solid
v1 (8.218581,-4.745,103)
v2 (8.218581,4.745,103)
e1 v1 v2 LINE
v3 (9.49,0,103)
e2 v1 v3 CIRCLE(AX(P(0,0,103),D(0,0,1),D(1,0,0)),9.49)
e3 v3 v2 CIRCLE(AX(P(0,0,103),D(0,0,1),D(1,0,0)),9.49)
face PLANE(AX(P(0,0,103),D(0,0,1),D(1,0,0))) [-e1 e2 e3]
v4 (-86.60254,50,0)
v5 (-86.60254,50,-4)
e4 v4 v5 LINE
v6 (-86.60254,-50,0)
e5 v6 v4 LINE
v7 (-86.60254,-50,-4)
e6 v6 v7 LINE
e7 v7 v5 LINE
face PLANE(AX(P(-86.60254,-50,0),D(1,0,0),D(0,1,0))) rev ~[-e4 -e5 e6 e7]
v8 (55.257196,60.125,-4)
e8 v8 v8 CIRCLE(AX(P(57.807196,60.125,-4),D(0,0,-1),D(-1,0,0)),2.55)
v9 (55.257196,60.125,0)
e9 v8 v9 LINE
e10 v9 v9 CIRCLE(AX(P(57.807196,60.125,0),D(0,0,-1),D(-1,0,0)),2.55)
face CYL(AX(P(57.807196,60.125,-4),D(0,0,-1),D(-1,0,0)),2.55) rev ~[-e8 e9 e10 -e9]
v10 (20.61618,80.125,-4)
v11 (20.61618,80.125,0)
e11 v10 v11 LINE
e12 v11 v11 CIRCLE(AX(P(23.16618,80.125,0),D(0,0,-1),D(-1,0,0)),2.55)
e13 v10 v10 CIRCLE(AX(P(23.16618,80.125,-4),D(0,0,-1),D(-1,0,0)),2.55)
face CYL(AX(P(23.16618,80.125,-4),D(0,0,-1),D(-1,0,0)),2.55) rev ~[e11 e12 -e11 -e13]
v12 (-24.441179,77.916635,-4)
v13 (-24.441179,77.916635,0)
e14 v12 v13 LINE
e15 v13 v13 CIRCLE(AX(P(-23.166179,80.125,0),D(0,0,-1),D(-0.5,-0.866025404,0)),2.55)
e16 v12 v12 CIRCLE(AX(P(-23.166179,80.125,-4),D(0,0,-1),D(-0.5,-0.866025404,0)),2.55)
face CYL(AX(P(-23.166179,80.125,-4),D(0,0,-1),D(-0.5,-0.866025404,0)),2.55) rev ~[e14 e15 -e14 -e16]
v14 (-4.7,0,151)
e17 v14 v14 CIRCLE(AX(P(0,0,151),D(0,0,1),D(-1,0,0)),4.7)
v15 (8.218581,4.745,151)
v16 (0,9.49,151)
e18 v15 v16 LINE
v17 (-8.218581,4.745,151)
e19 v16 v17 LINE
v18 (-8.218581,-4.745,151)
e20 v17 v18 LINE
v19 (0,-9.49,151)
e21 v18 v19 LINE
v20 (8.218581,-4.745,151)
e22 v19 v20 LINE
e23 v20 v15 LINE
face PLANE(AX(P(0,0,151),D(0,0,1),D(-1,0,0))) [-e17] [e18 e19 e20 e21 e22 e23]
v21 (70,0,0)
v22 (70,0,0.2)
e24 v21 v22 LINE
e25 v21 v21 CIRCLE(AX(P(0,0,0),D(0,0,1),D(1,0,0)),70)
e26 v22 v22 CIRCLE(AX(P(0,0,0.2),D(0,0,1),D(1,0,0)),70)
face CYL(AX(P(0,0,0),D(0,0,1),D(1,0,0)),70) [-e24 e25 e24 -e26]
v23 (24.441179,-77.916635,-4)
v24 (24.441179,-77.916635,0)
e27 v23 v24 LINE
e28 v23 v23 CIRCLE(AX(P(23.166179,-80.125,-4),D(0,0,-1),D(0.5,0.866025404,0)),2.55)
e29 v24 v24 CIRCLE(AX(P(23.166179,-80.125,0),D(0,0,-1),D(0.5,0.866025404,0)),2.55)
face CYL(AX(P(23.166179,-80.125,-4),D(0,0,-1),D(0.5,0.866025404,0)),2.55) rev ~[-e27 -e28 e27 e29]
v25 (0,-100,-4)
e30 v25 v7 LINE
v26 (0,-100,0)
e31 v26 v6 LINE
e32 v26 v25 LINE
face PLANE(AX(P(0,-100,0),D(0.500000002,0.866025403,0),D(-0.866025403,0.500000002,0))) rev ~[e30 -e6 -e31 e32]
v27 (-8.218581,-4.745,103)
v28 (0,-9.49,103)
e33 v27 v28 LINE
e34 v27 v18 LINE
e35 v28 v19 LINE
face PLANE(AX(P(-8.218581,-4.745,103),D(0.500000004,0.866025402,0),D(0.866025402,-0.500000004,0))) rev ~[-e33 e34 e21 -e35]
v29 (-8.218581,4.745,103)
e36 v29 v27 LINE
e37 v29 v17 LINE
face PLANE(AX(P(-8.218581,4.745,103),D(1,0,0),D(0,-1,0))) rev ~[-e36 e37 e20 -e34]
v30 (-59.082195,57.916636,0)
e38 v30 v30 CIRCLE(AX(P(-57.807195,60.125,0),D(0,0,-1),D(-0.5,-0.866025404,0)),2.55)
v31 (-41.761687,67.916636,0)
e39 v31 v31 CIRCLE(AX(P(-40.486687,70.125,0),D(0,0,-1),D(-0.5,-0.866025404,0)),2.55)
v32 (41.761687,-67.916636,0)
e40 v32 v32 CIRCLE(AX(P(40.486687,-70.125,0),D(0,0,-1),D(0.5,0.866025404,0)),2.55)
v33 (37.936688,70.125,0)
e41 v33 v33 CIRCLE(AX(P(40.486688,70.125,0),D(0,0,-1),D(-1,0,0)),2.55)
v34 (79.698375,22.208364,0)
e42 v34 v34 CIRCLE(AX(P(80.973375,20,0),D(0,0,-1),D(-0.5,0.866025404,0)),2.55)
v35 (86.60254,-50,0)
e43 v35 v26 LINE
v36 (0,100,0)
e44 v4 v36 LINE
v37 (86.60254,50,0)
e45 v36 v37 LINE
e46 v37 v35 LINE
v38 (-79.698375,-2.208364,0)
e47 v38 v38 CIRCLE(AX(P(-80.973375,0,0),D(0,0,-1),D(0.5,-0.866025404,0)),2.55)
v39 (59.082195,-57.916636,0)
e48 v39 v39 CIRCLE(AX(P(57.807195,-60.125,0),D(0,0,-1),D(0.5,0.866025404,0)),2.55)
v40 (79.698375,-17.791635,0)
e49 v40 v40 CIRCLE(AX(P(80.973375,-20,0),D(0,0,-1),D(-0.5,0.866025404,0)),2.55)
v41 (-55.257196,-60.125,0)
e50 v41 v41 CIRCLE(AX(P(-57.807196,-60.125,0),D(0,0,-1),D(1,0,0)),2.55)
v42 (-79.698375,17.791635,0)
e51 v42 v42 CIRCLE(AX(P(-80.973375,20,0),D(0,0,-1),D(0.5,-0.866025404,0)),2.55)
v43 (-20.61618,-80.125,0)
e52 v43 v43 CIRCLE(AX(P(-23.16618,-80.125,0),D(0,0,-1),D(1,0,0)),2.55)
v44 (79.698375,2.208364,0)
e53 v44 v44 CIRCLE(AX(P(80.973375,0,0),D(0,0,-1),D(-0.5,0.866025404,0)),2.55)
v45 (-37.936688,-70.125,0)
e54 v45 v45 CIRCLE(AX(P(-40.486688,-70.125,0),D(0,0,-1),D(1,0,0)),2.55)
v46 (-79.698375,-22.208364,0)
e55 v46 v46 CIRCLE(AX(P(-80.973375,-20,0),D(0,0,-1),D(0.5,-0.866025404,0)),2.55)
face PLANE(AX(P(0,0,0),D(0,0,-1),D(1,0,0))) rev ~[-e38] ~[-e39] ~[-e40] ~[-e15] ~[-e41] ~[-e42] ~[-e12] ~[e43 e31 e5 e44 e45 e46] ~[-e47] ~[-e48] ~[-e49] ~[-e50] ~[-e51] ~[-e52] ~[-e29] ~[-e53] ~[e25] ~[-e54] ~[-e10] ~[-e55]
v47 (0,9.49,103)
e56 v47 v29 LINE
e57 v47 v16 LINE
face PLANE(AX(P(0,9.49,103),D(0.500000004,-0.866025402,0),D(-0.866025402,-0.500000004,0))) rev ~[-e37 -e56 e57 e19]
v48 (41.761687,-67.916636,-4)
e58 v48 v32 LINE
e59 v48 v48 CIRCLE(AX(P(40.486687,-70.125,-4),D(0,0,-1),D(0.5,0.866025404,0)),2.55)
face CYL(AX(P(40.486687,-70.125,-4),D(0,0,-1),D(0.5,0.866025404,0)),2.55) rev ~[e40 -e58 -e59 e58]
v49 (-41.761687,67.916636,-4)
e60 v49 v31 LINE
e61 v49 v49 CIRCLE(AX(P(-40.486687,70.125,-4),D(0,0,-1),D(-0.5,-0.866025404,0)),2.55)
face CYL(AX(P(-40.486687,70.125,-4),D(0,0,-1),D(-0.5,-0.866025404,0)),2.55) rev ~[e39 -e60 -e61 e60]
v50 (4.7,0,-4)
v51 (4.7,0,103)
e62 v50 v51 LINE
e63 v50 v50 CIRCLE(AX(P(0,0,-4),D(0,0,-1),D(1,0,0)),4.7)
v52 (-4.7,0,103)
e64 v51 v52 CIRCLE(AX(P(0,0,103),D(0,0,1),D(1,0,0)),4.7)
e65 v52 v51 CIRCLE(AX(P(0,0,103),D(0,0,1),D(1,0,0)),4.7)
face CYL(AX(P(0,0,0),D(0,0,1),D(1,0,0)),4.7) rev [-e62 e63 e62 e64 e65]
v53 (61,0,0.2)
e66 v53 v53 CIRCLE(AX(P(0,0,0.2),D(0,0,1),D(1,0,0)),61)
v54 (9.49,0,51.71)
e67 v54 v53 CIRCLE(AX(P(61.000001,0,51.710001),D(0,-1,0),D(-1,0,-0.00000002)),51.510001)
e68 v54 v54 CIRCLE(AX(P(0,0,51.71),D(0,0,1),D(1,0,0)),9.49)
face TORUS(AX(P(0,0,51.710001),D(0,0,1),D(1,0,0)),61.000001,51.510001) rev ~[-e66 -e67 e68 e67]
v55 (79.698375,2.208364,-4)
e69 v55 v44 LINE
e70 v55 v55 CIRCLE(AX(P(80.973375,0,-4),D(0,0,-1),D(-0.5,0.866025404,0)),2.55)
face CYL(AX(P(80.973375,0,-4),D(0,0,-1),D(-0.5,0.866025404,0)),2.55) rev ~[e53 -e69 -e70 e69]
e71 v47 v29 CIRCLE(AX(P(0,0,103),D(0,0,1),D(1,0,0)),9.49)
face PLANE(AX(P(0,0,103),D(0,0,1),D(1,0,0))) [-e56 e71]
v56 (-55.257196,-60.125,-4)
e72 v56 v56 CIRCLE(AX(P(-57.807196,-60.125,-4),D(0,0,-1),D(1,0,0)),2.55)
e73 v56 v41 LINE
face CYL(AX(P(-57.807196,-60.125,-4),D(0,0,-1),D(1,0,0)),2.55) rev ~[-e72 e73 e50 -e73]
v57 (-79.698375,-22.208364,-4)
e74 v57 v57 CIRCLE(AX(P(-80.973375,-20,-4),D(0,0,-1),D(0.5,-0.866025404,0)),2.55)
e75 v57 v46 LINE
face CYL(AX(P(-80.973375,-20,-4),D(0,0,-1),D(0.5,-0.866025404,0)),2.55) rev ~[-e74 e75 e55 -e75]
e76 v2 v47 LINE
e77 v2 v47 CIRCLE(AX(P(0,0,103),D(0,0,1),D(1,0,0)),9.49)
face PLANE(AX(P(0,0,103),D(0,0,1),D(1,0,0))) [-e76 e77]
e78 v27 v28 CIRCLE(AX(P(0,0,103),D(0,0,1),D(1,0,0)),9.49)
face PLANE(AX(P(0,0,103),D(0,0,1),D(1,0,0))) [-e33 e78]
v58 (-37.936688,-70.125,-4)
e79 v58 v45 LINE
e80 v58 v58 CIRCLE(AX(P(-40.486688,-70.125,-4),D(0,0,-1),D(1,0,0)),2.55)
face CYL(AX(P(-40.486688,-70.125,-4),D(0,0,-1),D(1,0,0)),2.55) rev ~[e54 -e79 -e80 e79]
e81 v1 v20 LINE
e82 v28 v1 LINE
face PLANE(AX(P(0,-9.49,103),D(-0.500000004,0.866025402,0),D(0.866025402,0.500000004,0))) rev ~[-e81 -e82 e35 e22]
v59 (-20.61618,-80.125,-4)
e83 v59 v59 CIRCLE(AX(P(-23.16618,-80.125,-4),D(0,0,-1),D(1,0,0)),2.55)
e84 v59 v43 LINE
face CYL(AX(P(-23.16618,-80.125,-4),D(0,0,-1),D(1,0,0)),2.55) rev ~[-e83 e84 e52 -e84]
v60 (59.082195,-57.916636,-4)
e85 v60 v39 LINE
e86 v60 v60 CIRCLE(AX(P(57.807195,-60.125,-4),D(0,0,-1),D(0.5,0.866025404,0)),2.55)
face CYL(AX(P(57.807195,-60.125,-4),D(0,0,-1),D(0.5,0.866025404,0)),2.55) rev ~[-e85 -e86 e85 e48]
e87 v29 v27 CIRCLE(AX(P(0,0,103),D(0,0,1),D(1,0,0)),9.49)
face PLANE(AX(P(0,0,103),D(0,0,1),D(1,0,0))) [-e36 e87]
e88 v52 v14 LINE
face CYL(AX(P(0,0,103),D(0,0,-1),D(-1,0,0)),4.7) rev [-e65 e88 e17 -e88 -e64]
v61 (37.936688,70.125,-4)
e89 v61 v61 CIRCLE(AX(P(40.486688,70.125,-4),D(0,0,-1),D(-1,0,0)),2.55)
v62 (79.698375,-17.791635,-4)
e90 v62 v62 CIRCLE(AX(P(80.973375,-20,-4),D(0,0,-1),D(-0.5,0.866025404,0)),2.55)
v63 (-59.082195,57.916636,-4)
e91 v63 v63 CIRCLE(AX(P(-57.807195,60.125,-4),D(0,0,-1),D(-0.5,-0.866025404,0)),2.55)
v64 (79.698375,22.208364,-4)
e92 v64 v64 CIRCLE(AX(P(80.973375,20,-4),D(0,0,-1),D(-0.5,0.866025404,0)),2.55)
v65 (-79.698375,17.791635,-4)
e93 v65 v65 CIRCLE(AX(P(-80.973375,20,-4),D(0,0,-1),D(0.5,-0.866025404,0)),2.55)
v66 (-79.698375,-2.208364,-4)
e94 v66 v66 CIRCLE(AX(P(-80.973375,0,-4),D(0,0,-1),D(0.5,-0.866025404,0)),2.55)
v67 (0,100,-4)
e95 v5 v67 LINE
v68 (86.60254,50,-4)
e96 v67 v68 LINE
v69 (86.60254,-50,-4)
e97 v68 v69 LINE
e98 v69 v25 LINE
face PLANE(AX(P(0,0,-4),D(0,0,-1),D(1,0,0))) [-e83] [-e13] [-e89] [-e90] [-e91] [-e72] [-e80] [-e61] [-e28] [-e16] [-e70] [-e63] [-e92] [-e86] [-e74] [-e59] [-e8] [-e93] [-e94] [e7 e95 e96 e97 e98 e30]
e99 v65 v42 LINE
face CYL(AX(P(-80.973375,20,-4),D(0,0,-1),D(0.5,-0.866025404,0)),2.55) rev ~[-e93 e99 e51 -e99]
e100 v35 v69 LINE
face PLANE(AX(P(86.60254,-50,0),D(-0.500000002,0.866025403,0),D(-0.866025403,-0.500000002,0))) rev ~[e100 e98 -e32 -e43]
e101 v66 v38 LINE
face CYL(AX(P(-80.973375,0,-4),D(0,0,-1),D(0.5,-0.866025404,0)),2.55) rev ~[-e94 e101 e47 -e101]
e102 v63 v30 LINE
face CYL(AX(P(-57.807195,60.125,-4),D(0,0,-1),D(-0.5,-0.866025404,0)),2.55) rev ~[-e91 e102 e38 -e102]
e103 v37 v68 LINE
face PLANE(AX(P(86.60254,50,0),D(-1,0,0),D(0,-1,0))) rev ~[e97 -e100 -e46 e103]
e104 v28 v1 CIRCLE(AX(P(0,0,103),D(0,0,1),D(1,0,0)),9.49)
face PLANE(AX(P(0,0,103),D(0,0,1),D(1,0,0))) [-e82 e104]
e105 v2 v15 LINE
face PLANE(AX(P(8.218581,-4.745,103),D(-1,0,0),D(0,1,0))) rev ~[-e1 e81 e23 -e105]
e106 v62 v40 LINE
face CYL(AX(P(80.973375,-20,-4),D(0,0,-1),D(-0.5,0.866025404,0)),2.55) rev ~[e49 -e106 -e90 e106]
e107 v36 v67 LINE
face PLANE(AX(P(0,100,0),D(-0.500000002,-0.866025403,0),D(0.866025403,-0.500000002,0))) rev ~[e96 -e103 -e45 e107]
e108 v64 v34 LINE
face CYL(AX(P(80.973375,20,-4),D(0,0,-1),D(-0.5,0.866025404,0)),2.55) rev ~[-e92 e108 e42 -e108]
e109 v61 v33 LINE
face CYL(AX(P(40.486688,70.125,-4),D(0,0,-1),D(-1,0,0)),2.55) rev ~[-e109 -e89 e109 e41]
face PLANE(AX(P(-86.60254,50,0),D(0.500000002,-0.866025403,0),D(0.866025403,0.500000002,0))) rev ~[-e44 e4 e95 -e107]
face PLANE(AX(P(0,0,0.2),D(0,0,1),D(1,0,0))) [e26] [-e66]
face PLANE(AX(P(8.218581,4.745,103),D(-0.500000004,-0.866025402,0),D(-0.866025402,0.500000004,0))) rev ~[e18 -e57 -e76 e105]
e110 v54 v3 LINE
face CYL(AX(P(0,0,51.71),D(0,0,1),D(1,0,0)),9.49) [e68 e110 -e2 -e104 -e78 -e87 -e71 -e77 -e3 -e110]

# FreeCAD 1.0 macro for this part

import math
import FreeCAD as App
import Part
import Sketcher

V = App.Vector
Q = App.Units.Quantity

doc = App.newDocument("Part")
body = doc.addObject("PartDesign::Body", "Body")

sketch1 = body.newObject("Sketcher::SketchObject", "Sketch")
sketch1.AttachmentSupport = (doc.getObject("XZ_Plane"), [""])
sketch1.MapMode = "FlatFace"
sketch1.addGeometry([
    Part.LineSegment(V(9.49, 51.71, 0), V(9.49, 103, 0)),
    Part.LineSegment(V(9.49, 103, 0), V(4.7, 103, 0)),
    Part.LineSegment(V(4.7, 103, 0), V(4.7, 0, 0)),
    Part.LineSegment(V(4.7, 0, 0), V(70, 0, 0)),
    Part.LineSegment(V(70, 0, 0), V(70, 0.2, 0)),
    Part.LineSegment(V(70, 0.2, 0), V(61, 0.2, 0)),
    Part.ArcOfCircle(Part.Circle(V(61.000001, 51.710001, 0), V(0, 0, 1), 51.510001), math.radians(-179.999999), math.radians(-90.000001)),
], False)
sketch1.addConstraint([
    Sketcher.Constraint("Coincident", 0, 2, 1, 1),
    Sketcher.Constraint("Coincident", 1, 2, 2, 1),
    Sketcher.Constraint("Coincident", 2, 2, 3, 1),
    Sketcher.Constraint("Coincident", 3, 2, 4, 1),
    Sketcher.Constraint("Coincident", 4, 2, 5, 1),
    Sketcher.Constraint("Tangent", 5, 2, 6, 2),
    Sketcher.Constraint("Tangent", 6, 1, 0, 1),
    Sketcher.Constraint("Vertical", 0),
    Sketcher.Constraint("Horizontal", 1),
    Sketcher.Constraint("Vertical", 2),
    Sketcher.Constraint("Horizontal", 3),
    Sketcher.Constraint("Vertical", 4),
    Sketcher.Constraint("Horizontal", 5),
    Sketcher.Constraint("PointOnObject", 2, 2, -1),
    Sketcher.Constraint("DistanceX", 5, 2, 5, 1, Q("9 mm")),
    Sketcher.Constraint("DistanceY", 2, 2, 2, 1, Q("103 mm")),
    Sketcher.Constraint("Radius", 6, Q("51.510001 mm")),
    Sketcher.Constraint("DistanceX", 3, 1, 3, 2, Q("65.3 mm")),
    Sketcher.Constraint("DistanceY", 4, 1, 4, 2, Q("0.2 mm")),
    Sketcher.Constraint("DistanceX", -1, 1, 6, 3, Q("61.000001 mm")),
])
revolution = body.newObject("PartDesign::Revolution", "Revolution")
revolution.Profile = sketch1
revolution.ReferenceAxis = (sketch1, ["V_Axis"])
revolution.Angle = 360

sketch2 = body.newObject("Sketcher::SketchObject", "Sketch001")
sketch2.AttachmentSupport = (doc.getObject("XY_Plane"), [""])
sketch2.MapMode = "FlatFace"
sketch2.addGeometry([
    Part.LineSegment(V(0, -100, 0), V(-86.60254, -50, 0)),
    Part.LineSegment(V(-86.60254, -50, 0), V(-86.60254, 50, 0)),
    Part.LineSegment(V(-86.60254, 50, 0), V(0, 100, 0)),
    Part.LineSegment(V(0, 100, 0), V(86.60254, 50, 0)),
    Part.LineSegment(V(86.60254, 50, 0), V(86.60254, -50, 0)),
    Part.LineSegment(V(86.60254, -50, 0), V(0, -100, 0)),
    Part.Circle(V(0, 0, 0), V(0, 0, 1), 4.7),
], False)
sketch2.addConstraint([
    Sketcher.Constraint("Coincident", 0, 2, 1, 1),
    Sketcher.Constraint("Coincident", 1, 2, 2, 1),
    Sketcher.Constraint("Coincident", 2, 2, 3, 1),
    Sketcher.Constraint("Coincident", 3, 2, 4, 1),
    Sketcher.Constraint("Coincident", 4, 2, 5, 1),
    Sketcher.Constraint("Coincident", 5, 2, 0, 1),
    Sketcher.Constraint("Vertical", 1),
    Sketcher.Constraint("Vertical", 4),
    Sketcher.Constraint("Coincident", 6, 3, -1, 1),
    Sketcher.Constraint("Symmetric", 0, 2, 3, 2, -1, 1),
    Sketcher.Constraint("Symmetric", 2, 2, 5, 2, -1, 1),
    Sketcher.Constraint("PointOnObject", 2, 2, -2),
    Sketcher.Constraint("Parallel", 2, 5),
    Sketcher.Constraint("Horizontal", 1, 2, 3, 2),
    Sketcher.Constraint("Diameter", 6, Q("9.4 mm")),
    Sketcher.Constraint("DistanceY", 1, 1, 1, 2, Q("100 mm")),
    Sketcher.Constraint("Angle", 0, Q("150 deg")),
    Sketcher.Constraint("Distance", 0, Q("100 mm")),
])
pad1 = body.newObject("PartDesign::Pad", "Pad")
pad1.Profile = sketch2
pad1.Length = 4
pad1.Reversed = True

sketch3 = body.newObject("Sketcher::SketchObject", "Sketch002")
sketch3.AttachmentSupport = (doc.getObject("XY_Plane"), [""])
sketch3.MapMode = "FlatFace"
sketch3.AttachmentOffset = App.Placement(V(0, 0, -4), App.Rotation())
sketch3.addGeometry([
    Part.Circle(V(-57.807196, -60.125, 0), V(0, 0, 1), 2.55),
    Part.Circle(V(-40.486688, -70.125, 0), V(0, 0, 1), 2.55),
    Part.Circle(V(-23.16618, -80.125, 0), V(0, 0, 1), 2.55),
], False)
sketch3.addConstraint([
    Sketcher.Constraint("Equal", 0, 1),
    Sketcher.Constraint("Equal", 1, 2),
    Sketcher.Constraint("Diameter", 0, Q("5.1 mm")),
    Sketcher.Constraint("DistanceY", 1, 3, 0, 3, Q("10 mm")),
    Sketcher.Constraint("DistanceY", 2, 3, 1, 3, Q("10 mm")),
    Sketcher.Constraint("DistanceY", 0, 3, -1, 1, Q("60.125 mm")),
    Sketcher.Constraint("DistanceX", 2, 3, -1, 1, Q("23.16618 mm")),
    Sketcher.Constraint("DistanceX", 1, 3, 2, 3, Q("17.320508 mm")),
    Sketcher.Constraint("DistanceX", 0, 3, -1, 1, Q("57.807196 mm")),
])
pocket1 = body.newObject("PartDesign::Pocket", "Pocket")
pocket1.Profile = sketch3
pocket1.Length = 5
pocket1.Reversed = True
doc.recompute()

polarpattern = body.newObject("PartDesign::PolarPattern", "PolarPattern")
polarpattern.Originals = [pocket1]
polarpattern.Axis = (doc.getObject("Z_Axis"), [""])
polarpattern.Angle = 360
polarpattern.Occurrences = 6
body.Tip = polarpattern

sketch4 = body.newObject("Sketcher::SketchObject", "Sketch003")
sketch4.AttachmentSupport = (doc.getObject("XY_Plane"), [""])
sketch4.MapMode = "FlatFace"
sketch4.AttachmentOffset = App.Placement(V(0, 0, 103), App.Rotation())
sketch4.addGeometry([
    Part.LineSegment(V(0, -9.49, 0), V(8.218581, -4.745, 0)),
    Part.LineSegment(V(8.218581, -4.745, 0), V(8.218581, 4.745, 0)),
    Part.LineSegment(V(8.218581, 4.745, 0), V(0, 9.49, 0)),
    Part.LineSegment(V(0, 9.49, 0), V(-8.218581, 4.745, 0)),
    Part.LineSegment(V(-8.218581, 4.745, 0), V(-8.218581, -4.745, 0)),
    Part.LineSegment(V(-8.218581, -4.745, 0), V(0, -9.49, 0)),
    Part.Circle(V(0, 0, 0), V(0, 0, 1), 4.7),
], False)
sketch4.addConstraint([
    Sketcher.Constraint("Coincident", 0, 2, 1, 1),
    Sketcher.Constraint("Coincident", 1, 2, 2, 1),
    Sketcher.Constraint("Coincident", 2, 2, 3, 1),
    Sketcher.Constraint("Coincident", 3, 2, 4, 1),
    Sketcher.Constraint("Coincident", 4, 2, 5, 1),
    Sketcher.Constraint("Coincident", 5, 2, 0, 1),
    Sketcher.Constraint("Vertical", 1),
    Sketcher.Constraint("Vertical", 4),
    Sketcher.Constraint("Coincident", 6, 3, -1, 1),
    Sketcher.Constraint("Symmetric", 0, 2, 3, 2, -1, 1),
    Sketcher.Constraint("Symmetric", 2, 2, 5, 2, -1, 1),
    Sketcher.Constraint("PointOnObject", 2, 2, -2),
    Sketcher.Constraint("Parallel", 2, 5),
    Sketcher.Constraint("Horizontal", 1, 2, 3, 2),
    Sketcher.Constraint("Diameter", 6, Q("9.4 mm")),
    Sketcher.Constraint("Angle", 0, Q("30 deg")),
    Sketcher.Constraint("DistanceY", 1, 1, 1, 2, Q("9.49 mm")),
    Sketcher.Constraint("Distance", 0, Q("9.49 mm")),
])
pad2 = body.newObject("PartDesign::Pad", "Pad001")
pad2.Profile = sketch4
pad2.Length = 48

doc.recompute()
